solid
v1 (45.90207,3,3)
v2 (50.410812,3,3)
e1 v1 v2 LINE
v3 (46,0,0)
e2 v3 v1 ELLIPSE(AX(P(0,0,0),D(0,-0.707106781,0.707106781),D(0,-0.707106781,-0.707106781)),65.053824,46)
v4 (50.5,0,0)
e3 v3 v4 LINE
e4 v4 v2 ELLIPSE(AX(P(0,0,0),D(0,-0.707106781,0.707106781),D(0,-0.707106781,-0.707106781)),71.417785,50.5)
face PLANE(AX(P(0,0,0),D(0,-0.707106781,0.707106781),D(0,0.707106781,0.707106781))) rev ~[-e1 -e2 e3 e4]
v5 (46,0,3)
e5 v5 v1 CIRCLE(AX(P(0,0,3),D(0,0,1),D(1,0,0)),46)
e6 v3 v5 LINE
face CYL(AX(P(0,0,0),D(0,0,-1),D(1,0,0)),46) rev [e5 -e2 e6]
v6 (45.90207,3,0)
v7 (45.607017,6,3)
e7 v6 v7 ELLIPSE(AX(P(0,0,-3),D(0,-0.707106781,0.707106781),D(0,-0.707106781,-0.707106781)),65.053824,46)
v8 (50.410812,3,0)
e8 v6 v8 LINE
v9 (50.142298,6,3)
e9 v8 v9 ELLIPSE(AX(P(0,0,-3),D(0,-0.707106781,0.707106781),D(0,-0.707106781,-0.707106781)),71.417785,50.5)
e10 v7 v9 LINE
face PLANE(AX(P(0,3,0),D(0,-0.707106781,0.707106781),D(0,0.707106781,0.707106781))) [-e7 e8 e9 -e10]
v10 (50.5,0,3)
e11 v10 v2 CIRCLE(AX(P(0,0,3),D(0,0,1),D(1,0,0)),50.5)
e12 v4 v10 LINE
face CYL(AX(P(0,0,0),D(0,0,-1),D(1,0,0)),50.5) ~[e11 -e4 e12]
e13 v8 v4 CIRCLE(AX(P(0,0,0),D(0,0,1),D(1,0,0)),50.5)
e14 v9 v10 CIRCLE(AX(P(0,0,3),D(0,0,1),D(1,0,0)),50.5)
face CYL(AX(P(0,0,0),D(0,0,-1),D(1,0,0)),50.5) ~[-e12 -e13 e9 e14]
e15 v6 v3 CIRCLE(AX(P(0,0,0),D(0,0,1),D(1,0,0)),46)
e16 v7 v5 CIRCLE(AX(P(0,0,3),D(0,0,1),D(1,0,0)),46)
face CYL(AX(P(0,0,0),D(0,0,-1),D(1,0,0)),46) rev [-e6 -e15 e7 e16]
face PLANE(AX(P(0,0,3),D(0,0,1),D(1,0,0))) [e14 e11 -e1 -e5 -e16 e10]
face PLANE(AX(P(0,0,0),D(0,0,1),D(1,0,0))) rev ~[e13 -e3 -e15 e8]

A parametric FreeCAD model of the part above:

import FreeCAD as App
import Part
import Sketcher
Q = App.Units.Quantity

doc = App.newDocument("Part")
params = doc.addObject("Spreadsheet::Sheet", "Params")
for row, (alias, value) in enumerate([
    ("sketch1_diameter", "101 mm"),
    ("sketch1_diameter2", "92 mm"),
    ("pad1_length", "3 mm"),
    ("sketch2_width", "3 mm"),
    ("pocket1_length", "77.4946 mm"),
], start=1):
    params.set(f"A{row}", alias)
    params.set(f"B{row}", "=" + value)
    params.setAlias(f"B{row}", alias)

body = doc.addObject("PartDesign::Body", "Body")

# Sketch on XY plane
sketch1 = body.newObject("Sketcher::SketchObject", "Sketch")
sketch1.AttachmentSupport = (doc.getObject("XY_Plane"), [""])
sketch1.MapMode = "FlatFace"
sketch1.addGeometry(Part.Circle(App.Vector(0, 0, 0), App.Vector(0, 0, 1), 50), False)
sketch1.addGeometry(Part.Circle(App.Vector(0, 0, 0), App.Vector(0, 0, 1), 46), False)
sketch1.addConstraint(Sketcher.Constraint("Coincident", 0, 3, -1, 1))
sketch1.addConstraint(Sketcher.Constraint("Coincident", 1, 3, -1, 1))
sketch1.addConstraint(Sketcher.Constraint("Diameter", 0, Q("101 mm")))
sketch1.addConstraint(Sketcher.Constraint("Diameter", 1, Q("92 mm")))
sketch1.setExpression("Constraints[2]", "Params.sketch1_diameter")
sketch1.setExpression("Constraints[3]", "Params.sketch1_diameter2")
pad1 = body.newObject("PartDesign::Pad", "Pad")
pad1.Profile = sketch1
pad1.setExpression("Length", "Params.pad1_length")

# Sketch on YZ plane
sketch2 = body.newObject("Sketcher::SketchObject", "Sketch001")
sketch2.AttachmentSupport = (doc.getObject("YZ_Plane"), [""])
sketch2.MapMode = "FlatFace"
sketch2.addGeometry(Part.LineSegment(App.Vector(3, 3, 0), App.Vector(0, 0, 0)), False)
sketch2.addGeometry(Part.LineSegment(App.Vector(0, 0, 0), App.Vector(3, 0, 0)), False)
sketch2.addGeometry(Part.LineSegment(App.Vector(3, 0, 0), App.Vector(6, 3, 0)), False)
sketch2.addGeometry(Part.LineSegment(App.Vector(6, 3, 0), App.Vector(3, 3, 0)), False)
sketch2.addConstraint(Sketcher.Constraint("Coincident", 0, 2, 1, 1))
sketch2.addConstraint(Sketcher.Constraint("Coincident", 1, 2, 2, 1))
sketch2.addConstraint(Sketcher.Constraint("Coincident", 2, 2, 3, 1))
sketch2.addConstraint(Sketcher.Constraint("Coincident", 3, 2, 0, 1))
sketch2.addConstraint(Sketcher.Constraint("Horizontal", 1))
sketch2.addConstraint(Sketcher.Constraint("Horizontal", 3))
sketch2.addConstraint(Sketcher.Constraint("Coincident", 0, 2, -1, 1))
sketch2.addConstraint(Sketcher.Constraint("Parallel", 0, 2))
sketch2.addConstraint(Sketcher.Constraint("Vertical", 1, 2, 3, 2))
sketch2.addConstraint(Sketcher.Constraint("DistanceX", 1, 1, 1, 2, Q("3 mm")))
sketch2.addConstraint(Sketcher.Constraint("Angle", 0, Q("-135 deg")))
sketch2.setExpression("Constraints[9]", "Params.sketch2_width")
pocket1 = body.newObject("PartDesign::Pocket", "Pocket")
pocket1.Profile = sketch2
pocket1.setExpression("Length", "Params.pocket1_length")
pocket1.Reversed = True

doc.recompute()
